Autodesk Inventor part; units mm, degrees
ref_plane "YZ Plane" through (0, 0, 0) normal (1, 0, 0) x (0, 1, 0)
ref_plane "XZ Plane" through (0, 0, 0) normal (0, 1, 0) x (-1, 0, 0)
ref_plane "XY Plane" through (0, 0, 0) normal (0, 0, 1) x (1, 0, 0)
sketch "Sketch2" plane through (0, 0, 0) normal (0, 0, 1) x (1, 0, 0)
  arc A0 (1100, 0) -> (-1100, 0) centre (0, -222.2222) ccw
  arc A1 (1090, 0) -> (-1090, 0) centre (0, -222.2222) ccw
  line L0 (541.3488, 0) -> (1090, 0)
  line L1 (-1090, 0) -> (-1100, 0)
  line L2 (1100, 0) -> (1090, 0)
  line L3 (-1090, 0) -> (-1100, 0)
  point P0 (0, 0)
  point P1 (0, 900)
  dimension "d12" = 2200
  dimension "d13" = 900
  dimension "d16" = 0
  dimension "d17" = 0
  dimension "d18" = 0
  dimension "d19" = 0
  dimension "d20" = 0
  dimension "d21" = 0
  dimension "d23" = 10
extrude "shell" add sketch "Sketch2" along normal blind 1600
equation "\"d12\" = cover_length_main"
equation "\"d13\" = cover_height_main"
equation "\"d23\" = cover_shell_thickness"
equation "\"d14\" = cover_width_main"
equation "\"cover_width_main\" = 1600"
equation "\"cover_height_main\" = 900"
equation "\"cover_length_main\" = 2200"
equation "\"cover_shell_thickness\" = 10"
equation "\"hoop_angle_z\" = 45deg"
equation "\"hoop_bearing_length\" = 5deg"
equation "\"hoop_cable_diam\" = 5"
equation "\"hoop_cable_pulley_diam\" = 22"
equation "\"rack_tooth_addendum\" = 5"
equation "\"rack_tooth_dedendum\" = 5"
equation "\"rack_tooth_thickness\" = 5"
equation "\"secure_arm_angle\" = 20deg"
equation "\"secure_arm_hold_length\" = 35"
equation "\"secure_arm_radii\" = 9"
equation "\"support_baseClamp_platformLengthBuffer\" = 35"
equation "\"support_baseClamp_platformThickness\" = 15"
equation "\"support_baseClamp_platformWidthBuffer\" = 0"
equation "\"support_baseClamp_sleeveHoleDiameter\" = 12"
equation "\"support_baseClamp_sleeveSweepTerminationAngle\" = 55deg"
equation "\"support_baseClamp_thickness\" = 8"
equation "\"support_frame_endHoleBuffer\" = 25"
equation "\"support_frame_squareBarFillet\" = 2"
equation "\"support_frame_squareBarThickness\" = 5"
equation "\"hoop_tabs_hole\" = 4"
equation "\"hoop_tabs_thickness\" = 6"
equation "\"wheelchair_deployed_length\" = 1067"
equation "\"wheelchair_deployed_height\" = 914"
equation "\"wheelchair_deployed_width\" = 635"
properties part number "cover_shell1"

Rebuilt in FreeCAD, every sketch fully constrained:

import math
import FreeCAD as App
import Part
import Sketcher
from FreeCAD import Vector

doc = App.newDocument("Part")
body = doc.addObject("PartDesign::Body", "Body")

# Sketch on XY plane
sketch1 = body.newObject("Sketcher::SketchObject", "Sketch")
sketch1.AttachmentSupport = (doc.getObject("XY_Plane"), [""])
sketch1.MapMode = "FlatFace"
sketch1.addGeometry([
    Part.LineSegment(Vector(1090, 0, 0), Vector(1100, 0, 0)),
    Part.ArcOfCircle(Part.Circle(Vector(0, -222, 0), Vector(0, 0, 1), 1122), math.radians(11), math.radians(169)),
    Part.LineSegment(Vector(-1100, 0, 0), Vector(-1090, 0, 0)),
    Part.ArcOfCircle(Part.Circle(Vector(0, -222, 0), Vector(0, 0, 1), 1112), math.radians(12), math.radians(168)),
], False)
sketch1.addConstraint([
    Sketcher.Constraint("Coincident", 0, 2, 1, 1),
    Sketcher.Constraint("Coincident", 1, 2, 2, 1),
    Sketcher.Constraint("Coincident", 2, 2, 3, 2),
    Sketcher.Constraint("Coincident", 3, 1, 0, 1),
    Sketcher.Constraint("Horizontal", 0),
    Sketcher.Constraint("Horizontal", 2),
    Sketcher.Constraint("Coincident", 3, 3, 1, 3),
    Sketcher.Constraint("PointOnObject", 1, 3, -2),
    Sketcher.Constraint("PointOnObject", 0, 2, -1),
    Sketcher.Constraint("PointOnObject", 2, 2, -1),
    Sketcher.Constraint("DistanceX", 0, 1, 0, 2, 10.0),
    Sketcher.Constraint("DistanceX", 1, 2, 0, 2, 2200.0),
    Sketcher.Constraint("Radius", 3, 1112.422),
])
pad1 = body.newObject("PartDesign::Pad", "Pad")
pad1.Profile = sketch1
pad1.Length = 1600

doc.recompute()
